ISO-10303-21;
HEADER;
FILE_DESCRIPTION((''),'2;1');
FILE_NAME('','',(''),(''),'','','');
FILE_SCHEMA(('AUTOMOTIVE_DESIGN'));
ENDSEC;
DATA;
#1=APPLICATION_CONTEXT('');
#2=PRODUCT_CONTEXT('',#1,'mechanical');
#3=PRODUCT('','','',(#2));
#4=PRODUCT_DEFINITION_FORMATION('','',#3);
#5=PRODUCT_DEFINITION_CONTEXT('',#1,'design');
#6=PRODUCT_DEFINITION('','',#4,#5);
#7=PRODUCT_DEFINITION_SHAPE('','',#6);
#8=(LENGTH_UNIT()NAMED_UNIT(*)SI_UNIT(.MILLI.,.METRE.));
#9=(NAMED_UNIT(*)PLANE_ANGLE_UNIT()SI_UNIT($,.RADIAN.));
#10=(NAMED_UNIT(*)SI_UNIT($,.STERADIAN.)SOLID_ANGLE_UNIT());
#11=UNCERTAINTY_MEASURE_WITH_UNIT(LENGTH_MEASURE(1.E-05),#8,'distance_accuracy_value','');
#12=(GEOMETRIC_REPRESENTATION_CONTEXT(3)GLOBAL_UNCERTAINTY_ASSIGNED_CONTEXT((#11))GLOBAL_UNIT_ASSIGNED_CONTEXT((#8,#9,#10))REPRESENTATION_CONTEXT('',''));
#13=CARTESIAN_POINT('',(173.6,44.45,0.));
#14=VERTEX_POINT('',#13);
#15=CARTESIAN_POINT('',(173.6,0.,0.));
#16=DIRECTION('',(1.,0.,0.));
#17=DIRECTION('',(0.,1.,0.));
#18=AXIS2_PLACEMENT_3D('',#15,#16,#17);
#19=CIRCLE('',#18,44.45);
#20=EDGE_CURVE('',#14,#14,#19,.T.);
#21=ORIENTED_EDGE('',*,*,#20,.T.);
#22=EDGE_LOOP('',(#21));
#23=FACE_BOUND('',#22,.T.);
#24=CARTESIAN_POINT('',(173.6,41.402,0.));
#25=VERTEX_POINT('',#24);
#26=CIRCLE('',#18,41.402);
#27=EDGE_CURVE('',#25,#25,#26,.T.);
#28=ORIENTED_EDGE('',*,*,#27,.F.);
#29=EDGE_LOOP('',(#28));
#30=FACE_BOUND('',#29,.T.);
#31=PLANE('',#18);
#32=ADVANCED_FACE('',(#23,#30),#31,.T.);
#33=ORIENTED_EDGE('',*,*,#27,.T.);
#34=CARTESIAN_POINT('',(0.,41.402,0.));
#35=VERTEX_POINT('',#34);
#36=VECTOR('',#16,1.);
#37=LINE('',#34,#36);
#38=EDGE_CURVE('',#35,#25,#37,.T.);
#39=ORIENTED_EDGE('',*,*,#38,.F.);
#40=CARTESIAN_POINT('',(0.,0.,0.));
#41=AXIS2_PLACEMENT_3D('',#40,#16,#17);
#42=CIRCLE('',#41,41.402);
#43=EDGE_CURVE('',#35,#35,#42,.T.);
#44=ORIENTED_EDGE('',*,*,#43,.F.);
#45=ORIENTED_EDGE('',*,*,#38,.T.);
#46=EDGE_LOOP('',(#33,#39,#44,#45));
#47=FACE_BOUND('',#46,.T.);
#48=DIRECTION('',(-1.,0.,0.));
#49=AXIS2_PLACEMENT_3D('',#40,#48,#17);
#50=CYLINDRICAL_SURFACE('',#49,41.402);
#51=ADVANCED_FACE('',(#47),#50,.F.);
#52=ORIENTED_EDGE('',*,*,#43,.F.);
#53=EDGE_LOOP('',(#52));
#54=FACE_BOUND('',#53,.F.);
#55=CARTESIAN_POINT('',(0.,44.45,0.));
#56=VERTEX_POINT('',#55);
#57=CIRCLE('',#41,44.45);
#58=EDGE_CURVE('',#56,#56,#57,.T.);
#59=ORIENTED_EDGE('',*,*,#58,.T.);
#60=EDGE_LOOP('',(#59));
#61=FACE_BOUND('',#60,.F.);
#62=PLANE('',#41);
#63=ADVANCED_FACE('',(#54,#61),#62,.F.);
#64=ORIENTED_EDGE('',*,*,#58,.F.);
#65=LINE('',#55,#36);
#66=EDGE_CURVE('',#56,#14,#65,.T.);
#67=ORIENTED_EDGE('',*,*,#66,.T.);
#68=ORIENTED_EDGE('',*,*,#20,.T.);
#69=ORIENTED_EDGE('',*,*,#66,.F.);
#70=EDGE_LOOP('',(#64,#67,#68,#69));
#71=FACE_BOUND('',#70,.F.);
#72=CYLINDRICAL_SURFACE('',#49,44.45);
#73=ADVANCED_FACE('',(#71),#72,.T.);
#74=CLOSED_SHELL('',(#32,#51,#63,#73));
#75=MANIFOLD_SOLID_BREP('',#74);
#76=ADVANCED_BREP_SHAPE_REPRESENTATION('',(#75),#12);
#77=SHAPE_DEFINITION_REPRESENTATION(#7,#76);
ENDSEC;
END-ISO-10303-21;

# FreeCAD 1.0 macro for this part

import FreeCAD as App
import Part
import Sketcher
from FreeCAD import Vector
Q = App.Units.Quantity

doc = App.newDocument("Part")
body = doc.addObject("PartDesign::Body", "Body")

# Sketch on YZ plane
sketch1 = body.newObject("Sketcher::SketchObject", "Sketch")
sketch1.AttachmentSupport = (doc.getObject("YZ_Plane"), [""])
sketch1.MapMode = "FlatFace"
sketch1.addGeometry(Part.Circle(Vector(0, 0, 0), Vector(0, 0, 1), 44.45), False)
sketch1.addGeometry(Part.Circle(Vector(0, 0, 0), Vector(0, 0, 1), 41.402), False)
sketch1.addConstraint(Sketcher.Constraint("Coincident", 0, 3, -1, 1))
sketch1.addConstraint(Sketcher.Constraint("Coincident", 1, 3, -1, 1))
sketch1.addConstraint(Sketcher.Constraint("Diameter", 0, Q("3.5 in")))
sketch1.addConstraint(Sketcher.Constraint("Diameter", 1, Q("3.26 in")))
pad1 = body.newObject("PartDesign::Pad", "Pad")
pad1.Profile = sketch1
pad1.Length = 173.6

doc.recompute()
